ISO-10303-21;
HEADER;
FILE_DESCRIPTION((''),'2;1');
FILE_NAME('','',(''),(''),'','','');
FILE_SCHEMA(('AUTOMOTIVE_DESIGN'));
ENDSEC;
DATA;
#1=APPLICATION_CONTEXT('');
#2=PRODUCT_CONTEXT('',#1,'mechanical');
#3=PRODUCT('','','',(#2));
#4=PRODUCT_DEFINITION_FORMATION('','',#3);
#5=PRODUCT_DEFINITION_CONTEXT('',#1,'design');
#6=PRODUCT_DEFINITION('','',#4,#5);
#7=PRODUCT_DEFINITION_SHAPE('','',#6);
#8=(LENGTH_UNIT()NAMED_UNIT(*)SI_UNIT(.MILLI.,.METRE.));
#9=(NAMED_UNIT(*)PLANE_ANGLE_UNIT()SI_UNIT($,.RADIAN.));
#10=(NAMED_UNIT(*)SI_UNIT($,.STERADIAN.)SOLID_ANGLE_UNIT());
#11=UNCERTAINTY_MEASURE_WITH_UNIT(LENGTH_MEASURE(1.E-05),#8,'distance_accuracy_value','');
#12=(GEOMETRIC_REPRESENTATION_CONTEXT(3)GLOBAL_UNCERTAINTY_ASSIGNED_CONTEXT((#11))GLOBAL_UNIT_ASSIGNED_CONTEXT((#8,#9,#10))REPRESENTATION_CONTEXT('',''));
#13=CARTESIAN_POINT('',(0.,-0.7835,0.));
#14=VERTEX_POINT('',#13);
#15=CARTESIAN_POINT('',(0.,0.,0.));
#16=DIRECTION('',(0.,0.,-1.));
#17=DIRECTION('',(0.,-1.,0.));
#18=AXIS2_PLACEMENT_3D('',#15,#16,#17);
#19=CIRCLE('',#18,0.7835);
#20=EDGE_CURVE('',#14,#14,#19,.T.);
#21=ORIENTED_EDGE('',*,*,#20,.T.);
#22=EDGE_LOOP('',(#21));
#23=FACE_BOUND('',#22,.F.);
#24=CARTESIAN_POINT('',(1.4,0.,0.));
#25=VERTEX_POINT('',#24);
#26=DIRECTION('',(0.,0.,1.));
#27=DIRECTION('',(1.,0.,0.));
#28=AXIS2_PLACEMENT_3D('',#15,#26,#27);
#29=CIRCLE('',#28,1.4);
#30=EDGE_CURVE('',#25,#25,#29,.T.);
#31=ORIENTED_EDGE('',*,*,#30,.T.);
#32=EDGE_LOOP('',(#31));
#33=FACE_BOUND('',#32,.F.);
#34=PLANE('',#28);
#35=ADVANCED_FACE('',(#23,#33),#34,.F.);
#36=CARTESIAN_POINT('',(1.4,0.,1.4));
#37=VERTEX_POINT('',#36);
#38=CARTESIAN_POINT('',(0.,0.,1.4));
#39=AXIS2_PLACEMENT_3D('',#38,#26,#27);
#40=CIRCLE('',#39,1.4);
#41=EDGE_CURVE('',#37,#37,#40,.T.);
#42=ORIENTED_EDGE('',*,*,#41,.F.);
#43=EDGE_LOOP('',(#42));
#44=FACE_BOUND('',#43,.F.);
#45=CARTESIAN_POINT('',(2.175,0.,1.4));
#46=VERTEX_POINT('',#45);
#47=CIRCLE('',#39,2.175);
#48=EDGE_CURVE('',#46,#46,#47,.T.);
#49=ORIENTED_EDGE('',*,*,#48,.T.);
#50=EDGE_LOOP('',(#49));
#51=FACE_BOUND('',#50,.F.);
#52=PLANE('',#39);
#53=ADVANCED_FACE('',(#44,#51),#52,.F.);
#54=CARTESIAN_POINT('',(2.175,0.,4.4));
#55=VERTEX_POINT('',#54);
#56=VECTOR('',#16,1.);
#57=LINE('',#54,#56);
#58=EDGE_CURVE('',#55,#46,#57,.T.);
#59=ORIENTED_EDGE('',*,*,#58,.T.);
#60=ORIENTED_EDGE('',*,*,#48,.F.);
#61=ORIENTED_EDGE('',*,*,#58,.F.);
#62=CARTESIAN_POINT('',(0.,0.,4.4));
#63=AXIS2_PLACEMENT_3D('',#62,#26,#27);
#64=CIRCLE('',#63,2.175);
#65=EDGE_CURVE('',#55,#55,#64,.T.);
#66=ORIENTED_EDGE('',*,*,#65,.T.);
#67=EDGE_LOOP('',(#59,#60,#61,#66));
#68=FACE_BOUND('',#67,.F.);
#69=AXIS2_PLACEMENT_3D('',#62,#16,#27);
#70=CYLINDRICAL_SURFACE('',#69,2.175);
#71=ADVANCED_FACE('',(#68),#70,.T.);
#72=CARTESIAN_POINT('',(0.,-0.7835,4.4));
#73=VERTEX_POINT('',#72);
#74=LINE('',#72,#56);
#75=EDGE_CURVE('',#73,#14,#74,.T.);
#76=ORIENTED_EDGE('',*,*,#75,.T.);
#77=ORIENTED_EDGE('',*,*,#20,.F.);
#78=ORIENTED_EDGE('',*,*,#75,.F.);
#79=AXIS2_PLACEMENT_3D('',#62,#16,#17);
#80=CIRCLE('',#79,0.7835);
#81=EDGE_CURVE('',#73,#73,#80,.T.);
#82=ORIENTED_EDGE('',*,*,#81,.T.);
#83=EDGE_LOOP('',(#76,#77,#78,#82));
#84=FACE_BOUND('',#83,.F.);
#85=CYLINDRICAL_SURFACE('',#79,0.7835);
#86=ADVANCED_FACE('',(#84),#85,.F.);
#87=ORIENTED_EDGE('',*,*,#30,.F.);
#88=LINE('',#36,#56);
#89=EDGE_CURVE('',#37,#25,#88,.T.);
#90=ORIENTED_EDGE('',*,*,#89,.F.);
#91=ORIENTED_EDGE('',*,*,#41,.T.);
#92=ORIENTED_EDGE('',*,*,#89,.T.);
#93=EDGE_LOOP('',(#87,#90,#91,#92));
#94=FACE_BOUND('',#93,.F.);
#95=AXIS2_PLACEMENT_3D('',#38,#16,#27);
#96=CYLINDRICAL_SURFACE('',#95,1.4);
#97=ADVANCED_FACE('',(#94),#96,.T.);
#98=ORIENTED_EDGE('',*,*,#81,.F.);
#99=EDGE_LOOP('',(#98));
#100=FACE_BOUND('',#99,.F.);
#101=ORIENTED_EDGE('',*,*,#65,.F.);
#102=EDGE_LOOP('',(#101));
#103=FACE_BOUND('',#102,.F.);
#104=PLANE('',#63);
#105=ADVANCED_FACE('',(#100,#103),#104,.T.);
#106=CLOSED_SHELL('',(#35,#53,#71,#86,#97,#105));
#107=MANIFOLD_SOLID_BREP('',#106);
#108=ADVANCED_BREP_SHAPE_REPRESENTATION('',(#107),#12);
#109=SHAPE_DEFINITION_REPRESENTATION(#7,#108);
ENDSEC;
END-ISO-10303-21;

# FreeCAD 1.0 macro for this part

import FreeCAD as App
import Part
import Sketcher

V = App.Vector
Q = App.Units.Quantity

doc = App.newDocument("Part")
body = doc.addObject("PartDesign::Body", "Body")

# Sketch on XZ plane
sketch1 = body.newObject("Sketcher::SketchObject", "Sketch")
sketch1.AttachmentSupport = (doc.getObject("XZ_Plane"), [""])
sketch1.MapMode = "FlatFace"
sketch1.addGeometry(Part.LineSegment(V(1.4, 0, 0), V(0, 0, 0)), False)
sketch1.addGeometry(Part.LineSegment(V(0, 0, 0), V(0, 4.4, 0)), False)
sketch1.addGeometry(Part.LineSegment(V(0, 4.4, 0), V(2.2, 4.4, 0)), False)
sketch1.addGeometry(Part.LineSegment(V(2.2, 4.4, 0), V(2.2, 1.4, 0)), False)
sketch1.addGeometry(Part.LineSegment(V(2.2, 1.4, 0), V(1.4, 1.4, 0)), False)
sketch1.addGeometry(Part.LineSegment(V(1.4, 1.4, 0), V(1.4, 0, 0)), False)
sketch1.addConstraint(Sketcher.Constraint("Coincident", 0, 2, 1, 1))
sketch1.addConstraint(Sketcher.Constraint("Coincident", 1, 2, 2, 1))
sketch1.addConstraint(Sketcher.Constraint("Coincident", 2, 2, 3, 1))
sketch1.addConstraint(Sketcher.Constraint("Coincident", 3, 2, 4, 1))
sketch1.addConstraint(Sketcher.Constraint("Coincident", 4, 2, 5, 1))
sketch1.addConstraint(Sketcher.Constraint("Coincident", 5, 2, 0, 1))
sketch1.addConstraint(Sketcher.Constraint("Horizontal", 0))
sketch1.addConstraint(Sketcher.Constraint("Vertical", 1))
sketch1.addConstraint(Sketcher.Constraint("Horizontal", 2))
sketch1.addConstraint(Sketcher.Constraint("Vertical", 3))
sketch1.addConstraint(Sketcher.Constraint("Horizontal", 4))
sketch1.addConstraint(Sketcher.Constraint("Vertical", 5))
sketch1.addConstraint(Sketcher.Constraint("Coincident", 0, 2, -1, 1))
sketch1.addConstraint(Sketcher.Constraint("Equal", 0, 5))
sketch1.addConstraint(Sketcher.Constraint("DistanceY", 3, 2, 3, 1, Q("3 mm")))
sketch1.addConstraint(Sketcher.Constraint("DistanceX", 0, 2, 0, 1, Q("1.4 mm")))
sketch1.addConstraint(Sketcher.Constraint("DistanceX", 2, 1, 2, 2, Q("2.175 mm")))
revolution = body.newObject("PartDesign::Revolution", "Revolution")
revolution.Profile = sketch1
revolution.ReferenceAxis = (sketch1, ["V_Axis"])
revolution.Angle = 360

# Sketch on XY plane
sketch2 = body.newObject("Sketcher::SketchObject", "Sketch001")
sketch2.AttachmentSupport = (doc.getObject("XY_Plane"), [""])
sketch2.MapMode = "FlatFace"
sketch2.AttachmentOffset = App.Placement(V(0, 0, 4.4), App.Rotation())
sketch2.addGeometry(Part.Circle(V(0, 0, 0), V(0, 0, 1), 0.8), False)
sketch2.addConstraint(Sketcher.Constraint("Coincident", 0, 3, -1, 1))
sketch2.addConstraint(Sketcher.Constraint("Diameter", 0, Q("1.567 mm")))
doc.recompute()
hole = body.newObject("PartDesign::Hole", "Hole")
hole.Profile = sketch2
hole.ThreadType = "None"
hole.Diameter = 1.567
hole.DepthType = "ThroughAll"

doc.recompute()
